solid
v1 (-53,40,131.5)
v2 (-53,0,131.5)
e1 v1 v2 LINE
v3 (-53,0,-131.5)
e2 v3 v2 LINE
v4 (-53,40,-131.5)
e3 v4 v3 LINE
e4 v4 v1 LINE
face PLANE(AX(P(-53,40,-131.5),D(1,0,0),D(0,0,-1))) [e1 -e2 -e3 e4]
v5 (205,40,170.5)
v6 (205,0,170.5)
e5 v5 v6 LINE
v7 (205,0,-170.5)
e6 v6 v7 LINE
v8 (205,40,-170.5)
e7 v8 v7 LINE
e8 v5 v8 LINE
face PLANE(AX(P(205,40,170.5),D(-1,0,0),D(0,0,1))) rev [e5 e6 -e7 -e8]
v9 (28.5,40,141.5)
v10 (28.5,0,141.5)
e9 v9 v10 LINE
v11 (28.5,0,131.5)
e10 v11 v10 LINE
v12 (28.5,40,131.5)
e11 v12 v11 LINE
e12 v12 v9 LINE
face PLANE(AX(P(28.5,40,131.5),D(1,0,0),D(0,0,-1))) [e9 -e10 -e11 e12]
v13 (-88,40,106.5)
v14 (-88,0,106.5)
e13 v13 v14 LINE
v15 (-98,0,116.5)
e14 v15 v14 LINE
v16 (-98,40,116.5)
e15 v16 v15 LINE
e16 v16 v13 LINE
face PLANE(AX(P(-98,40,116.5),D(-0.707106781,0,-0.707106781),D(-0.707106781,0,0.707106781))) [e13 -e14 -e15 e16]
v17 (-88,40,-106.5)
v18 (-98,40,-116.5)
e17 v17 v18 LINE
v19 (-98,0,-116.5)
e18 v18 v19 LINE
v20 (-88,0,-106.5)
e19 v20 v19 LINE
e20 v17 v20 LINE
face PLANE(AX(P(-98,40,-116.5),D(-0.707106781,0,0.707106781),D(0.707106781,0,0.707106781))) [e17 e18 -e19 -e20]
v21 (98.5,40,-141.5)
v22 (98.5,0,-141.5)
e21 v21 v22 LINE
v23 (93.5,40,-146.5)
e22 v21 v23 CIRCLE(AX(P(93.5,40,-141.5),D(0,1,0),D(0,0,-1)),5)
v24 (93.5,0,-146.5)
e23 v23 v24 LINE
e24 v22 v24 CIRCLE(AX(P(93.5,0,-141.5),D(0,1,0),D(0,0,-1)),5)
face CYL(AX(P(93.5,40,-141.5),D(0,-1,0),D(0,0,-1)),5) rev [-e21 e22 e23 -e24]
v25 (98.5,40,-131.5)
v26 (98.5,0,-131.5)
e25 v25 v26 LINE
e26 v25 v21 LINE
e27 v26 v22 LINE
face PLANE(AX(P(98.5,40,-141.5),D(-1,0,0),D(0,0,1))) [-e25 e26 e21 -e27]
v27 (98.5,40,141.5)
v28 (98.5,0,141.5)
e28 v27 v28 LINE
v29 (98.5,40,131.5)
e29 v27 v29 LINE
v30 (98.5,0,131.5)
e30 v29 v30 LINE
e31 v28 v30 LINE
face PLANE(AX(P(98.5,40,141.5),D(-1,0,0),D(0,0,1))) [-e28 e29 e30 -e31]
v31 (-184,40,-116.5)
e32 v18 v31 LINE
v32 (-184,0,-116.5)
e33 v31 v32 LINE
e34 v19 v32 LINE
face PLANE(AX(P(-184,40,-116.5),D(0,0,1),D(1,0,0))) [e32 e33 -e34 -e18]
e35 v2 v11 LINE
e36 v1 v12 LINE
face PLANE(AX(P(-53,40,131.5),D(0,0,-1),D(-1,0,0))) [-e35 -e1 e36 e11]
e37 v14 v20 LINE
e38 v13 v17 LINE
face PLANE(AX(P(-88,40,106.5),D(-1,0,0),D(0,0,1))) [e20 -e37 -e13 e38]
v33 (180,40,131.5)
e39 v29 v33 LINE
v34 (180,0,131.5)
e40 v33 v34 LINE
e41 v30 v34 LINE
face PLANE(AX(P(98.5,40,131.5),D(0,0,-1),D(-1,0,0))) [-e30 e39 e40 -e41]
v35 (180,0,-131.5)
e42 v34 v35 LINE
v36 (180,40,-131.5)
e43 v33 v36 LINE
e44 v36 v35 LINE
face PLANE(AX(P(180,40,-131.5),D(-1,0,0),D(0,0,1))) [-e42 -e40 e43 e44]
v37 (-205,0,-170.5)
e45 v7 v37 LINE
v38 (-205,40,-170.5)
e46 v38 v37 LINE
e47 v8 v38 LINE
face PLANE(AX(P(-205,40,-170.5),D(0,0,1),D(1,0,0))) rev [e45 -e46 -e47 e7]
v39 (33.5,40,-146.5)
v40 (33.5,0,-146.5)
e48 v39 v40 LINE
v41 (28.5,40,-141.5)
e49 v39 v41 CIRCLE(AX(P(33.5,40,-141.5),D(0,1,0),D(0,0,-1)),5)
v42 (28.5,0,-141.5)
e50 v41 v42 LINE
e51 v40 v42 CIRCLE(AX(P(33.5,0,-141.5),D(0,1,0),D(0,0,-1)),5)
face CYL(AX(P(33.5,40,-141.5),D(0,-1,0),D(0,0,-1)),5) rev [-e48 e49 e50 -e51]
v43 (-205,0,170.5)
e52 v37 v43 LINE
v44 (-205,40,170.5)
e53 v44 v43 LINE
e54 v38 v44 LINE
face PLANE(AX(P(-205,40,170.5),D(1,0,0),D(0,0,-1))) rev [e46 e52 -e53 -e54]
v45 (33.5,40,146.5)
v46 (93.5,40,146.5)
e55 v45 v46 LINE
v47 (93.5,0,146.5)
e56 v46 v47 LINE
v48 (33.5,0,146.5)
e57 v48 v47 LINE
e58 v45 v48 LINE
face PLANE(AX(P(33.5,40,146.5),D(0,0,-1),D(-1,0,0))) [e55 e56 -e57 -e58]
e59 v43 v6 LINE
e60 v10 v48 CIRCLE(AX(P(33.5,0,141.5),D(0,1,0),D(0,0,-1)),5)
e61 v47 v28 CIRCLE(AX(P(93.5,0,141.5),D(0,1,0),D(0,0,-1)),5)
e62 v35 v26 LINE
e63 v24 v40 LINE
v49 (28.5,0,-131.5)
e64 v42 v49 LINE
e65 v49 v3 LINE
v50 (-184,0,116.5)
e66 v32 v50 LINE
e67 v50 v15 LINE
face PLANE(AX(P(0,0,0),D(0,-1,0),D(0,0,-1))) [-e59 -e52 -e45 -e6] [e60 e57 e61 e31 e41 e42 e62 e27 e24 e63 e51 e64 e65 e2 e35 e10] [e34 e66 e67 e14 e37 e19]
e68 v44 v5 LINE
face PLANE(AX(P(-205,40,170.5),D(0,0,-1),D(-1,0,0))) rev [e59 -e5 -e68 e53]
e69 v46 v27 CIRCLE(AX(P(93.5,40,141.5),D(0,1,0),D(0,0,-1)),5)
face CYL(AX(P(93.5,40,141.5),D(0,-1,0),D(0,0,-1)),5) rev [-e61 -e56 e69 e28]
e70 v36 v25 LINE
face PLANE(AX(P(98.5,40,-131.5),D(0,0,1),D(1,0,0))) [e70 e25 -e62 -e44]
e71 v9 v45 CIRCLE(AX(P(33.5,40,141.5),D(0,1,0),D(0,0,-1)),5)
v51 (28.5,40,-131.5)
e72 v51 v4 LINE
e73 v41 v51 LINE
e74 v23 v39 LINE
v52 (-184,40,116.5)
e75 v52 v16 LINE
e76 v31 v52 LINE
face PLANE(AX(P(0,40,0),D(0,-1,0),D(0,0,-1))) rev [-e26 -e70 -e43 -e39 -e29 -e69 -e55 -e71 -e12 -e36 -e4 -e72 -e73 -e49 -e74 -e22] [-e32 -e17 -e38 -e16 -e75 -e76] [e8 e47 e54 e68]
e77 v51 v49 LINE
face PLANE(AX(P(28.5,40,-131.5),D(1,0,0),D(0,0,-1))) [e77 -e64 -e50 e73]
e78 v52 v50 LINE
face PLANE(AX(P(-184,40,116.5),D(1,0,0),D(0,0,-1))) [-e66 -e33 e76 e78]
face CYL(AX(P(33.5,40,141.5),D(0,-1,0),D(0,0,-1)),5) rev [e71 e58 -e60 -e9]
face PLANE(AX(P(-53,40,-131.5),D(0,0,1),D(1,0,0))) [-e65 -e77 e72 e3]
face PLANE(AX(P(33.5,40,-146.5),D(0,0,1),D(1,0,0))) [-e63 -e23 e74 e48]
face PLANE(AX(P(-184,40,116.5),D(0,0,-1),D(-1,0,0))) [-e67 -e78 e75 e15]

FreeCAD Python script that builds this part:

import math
import FreeCAD as App
import Part
import Sketcher


def add_polygon(sketch, points):
    """Adds a closed chain of lines whose ends are joined by coincident constraints."""
    first, n = sketch.GeometryCount, len(points)
    for a, b in zip(points, points[1:] + points[:1]):
        sketch.addGeometry(Part.LineSegment(App.Vector(*a, 0), App.Vector(*b, 0)), False)
    for i in range(n):
        sketch.addConstraint(Sketcher.Constraint("Coincident", first + i, 2, first + (i + 1) % n, 1))

doc = App.newDocument("Part")
body = doc.addObject("PartDesign::Body", "Body")

sketch1 = body.newObject("Sketcher::SketchObject", "Sketch")
sketch1.AttachmentSupport = (doc.getObject("XZ_Plane"), [""])
sketch1.MapMode = "FlatFace"
add_polygon(sketch1, [(-205, -170), (-205, 170), (205, 170), (205, -170)])
add_polygon(sketch1, [(-98, 116), (-184, 116), (-184, -116), (-98, -116), (-88, -106), (-88, 106)])
sketch1.addGeometry(Part.LineSegment(App.Vector(-53, -132, 0), App.Vector(28, -132, 0)), False)
sketch1.addGeometry(Part.LineSegment(App.Vector(28, -132, 0), App.Vector(28, -142, 0)), False)
sketch1.addGeometry(Part.ArcOfCircle(Part.Circle(App.Vector(34, -142, 0), App.Vector(0, 0, 1), 5), math.radians(180), math.radians(270)), False)
sketch1.addGeometry(Part.LineSegment(App.Vector(34, -146, 0), App.Vector(94, -146, 0)), False)
sketch1.addGeometry(Part.ArcOfCircle(Part.Circle(App.Vector(94, -142, 0), App.Vector(0, 0, 1), 5), math.radians(-90), math.radians(0)), False)
sketch1.addGeometry(Part.LineSegment(App.Vector(98, -142, 0), App.Vector(98, -132, 0)), False)
sketch1.addGeometry(Part.LineSegment(App.Vector(98, -132, 0), App.Vector(180, -132, 0)), False)
sketch1.addGeometry(Part.LineSegment(App.Vector(180, -132, 0), App.Vector(180, 132, 0)), False)
sketch1.addGeometry(Part.LineSegment(App.Vector(180, 132, 0), App.Vector(98, 132, 0)), False)
sketch1.addGeometry(Part.LineSegment(App.Vector(98, 132, 0), App.Vector(98, 142, 0)), False)
sketch1.addGeometry(Part.ArcOfCircle(Part.Circle(App.Vector(94, 142, 0), App.Vector(0, 0, 1), 5), math.radians(0), math.radians(90)), False)
sketch1.addGeometry(Part.LineSegment(App.Vector(94, 146, 0), App.Vector(34, 146, 0)), False)
sketch1.addGeometry(Part.ArcOfCircle(Part.Circle(App.Vector(34, 142, 0), App.Vector(0, 0, 1), 5), math.radians(90), math.radians(180)), False)
sketch1.addGeometry(Part.LineSegment(App.Vector(28, 142, 0), App.Vector(28, 132, 0)), False)
sketch1.addGeometry(Part.LineSegment(App.Vector(28, 132, 0), App.Vector(-53, 132, 0)), False)
sketch1.addGeometry(Part.LineSegment(App.Vector(-53, 132, 0), App.Vector(-53, -132, 0)), False)
sketch1.addConstraint([
    Sketcher.Constraint("Coincident", 10, 2, 11, 1),
    Sketcher.Constraint("Tangent", 11, 2, 12, 1),
    Sketcher.Constraint("Tangent", 12, 2, 13, 1),
    Sketcher.Constraint("Tangent", 13, 2, 14, 1),
    Sketcher.Constraint("Tangent", 14, 2, 15, 1),
    Sketcher.Constraint("Coincident", 15, 2, 16, 1),
    Sketcher.Constraint("Coincident", 16, 2, 17, 1),
    Sketcher.Constraint("Coincident", 17, 2, 18, 1),
    Sketcher.Constraint("Coincident", 18, 2, 19, 1),
    Sketcher.Constraint("Tangent", 19, 2, 20, 1),
    Sketcher.Constraint("Tangent", 20, 2, 21, 1),
    Sketcher.Constraint("Tangent", 21, 2, 22, 1),
    Sketcher.Constraint("Tangent", 22, 2, 23, 1),
    Sketcher.Constraint("Coincident", 23, 2, 24, 1),
    Sketcher.Constraint("Coincident", 24, 2, 25, 1),
    Sketcher.Constraint("Coincident", 25, 2, 10, 1),
    Sketcher.Constraint("Vertical", 0),
    Sketcher.Constraint("Horizontal", 1),
    Sketcher.Constraint("Vertical", 2),
    Sketcher.Constraint("Horizontal", 3),
    Sketcher.Constraint("Horizontal", 4),
    Sketcher.Constraint("Vertical", 5),
    Sketcher.Constraint("Horizontal", 6),
    Sketcher.Constraint("Vertical", 8),
    Sketcher.Constraint("Horizontal", 10),
    Sketcher.Constraint("Vertical", 11),
    Sketcher.Constraint("Horizontal", 13),
    Sketcher.Constraint("Vertical", 15),
    Sketcher.Constraint("Horizontal", 16),
    Sketcher.Constraint("Vertical", 17),
    Sketcher.Constraint("Horizontal", 18),
    Sketcher.Constraint("Vertical", 19),
    Sketcher.Constraint("Horizontal", 21),
    Sketcher.Constraint("Vertical", 23),
    Sketcher.Constraint("Horizontal", 24),
    Sketcher.Constraint("Vertical", 25),
    Sketcher.Constraint("Equal", 12, 14),
    Sketcher.Constraint("Equal", 14, 20),
    Sketcher.Constraint("Equal", 20, 22),
    Sketcher.Constraint("Symmetric", 0, 2, 2, 2, -1, 1),
    Sketcher.Constraint("Symmetric", 14, 3, 20, 3, -1),
    Sketcher.Constraint("Symmetric", 6, 2, 9, 2, -1),
    Sketcher.Constraint("Symmetric", 10, 2, 23, 2, -1),
    Sketcher.Constraint("Perpendicular", 7, 9),
    Sketcher.Constraint("Horizontal", 10, 2, 15, 2),
    Sketcher.Constraint("Horizontal", 18, 2, 23, 2),
    Sketcher.Constraint("Equal", 10, 16),
    Sketcher.Constraint("Equal", 7, 9),
    Sketcher.Constraint("Radius", 12, 5.0),
    Sketcher.Constraint("DistanceX", 1, 1, 1, 2, 410.0),
    Sketcher.Constraint("DistanceX", 4, 2, 4, 1, 86.0),
    Sketcher.Constraint("DistanceX", 13, 1, 13, 2, 60.0),
    Sketcher.Constraint("DistanceY", 0, 1, 0, 2, 341.0),
    Sketcher.Constraint("DistanceY", 5, 2, 5, 1, 233.0),
    Sketcher.Constraint("DistanceY", 8, 1, 8, 2, 213.0),
    Sketcher.Constraint("DistanceY", 11, 2, 11, 1, 10.0),
    Sketcher.Constraint("DistanceY", 17, 1, 17, 2, 263.0),
    Sketcher.Constraint("DistanceX", 10, 1, 10, 2, 81.5),
    Sketcher.Constraint("DistanceX", 4, 2, -1, 1, 184.0),
    Sketcher.Constraint("DistanceX", -1, 1, 16, 2, 180.0),
])
pad1 = body.newObject("PartDesign::Pad", "Pad")
pad1.Profile = sketch1
pad1.Length = 40
pad1.Reversed = True

doc.recompute()
